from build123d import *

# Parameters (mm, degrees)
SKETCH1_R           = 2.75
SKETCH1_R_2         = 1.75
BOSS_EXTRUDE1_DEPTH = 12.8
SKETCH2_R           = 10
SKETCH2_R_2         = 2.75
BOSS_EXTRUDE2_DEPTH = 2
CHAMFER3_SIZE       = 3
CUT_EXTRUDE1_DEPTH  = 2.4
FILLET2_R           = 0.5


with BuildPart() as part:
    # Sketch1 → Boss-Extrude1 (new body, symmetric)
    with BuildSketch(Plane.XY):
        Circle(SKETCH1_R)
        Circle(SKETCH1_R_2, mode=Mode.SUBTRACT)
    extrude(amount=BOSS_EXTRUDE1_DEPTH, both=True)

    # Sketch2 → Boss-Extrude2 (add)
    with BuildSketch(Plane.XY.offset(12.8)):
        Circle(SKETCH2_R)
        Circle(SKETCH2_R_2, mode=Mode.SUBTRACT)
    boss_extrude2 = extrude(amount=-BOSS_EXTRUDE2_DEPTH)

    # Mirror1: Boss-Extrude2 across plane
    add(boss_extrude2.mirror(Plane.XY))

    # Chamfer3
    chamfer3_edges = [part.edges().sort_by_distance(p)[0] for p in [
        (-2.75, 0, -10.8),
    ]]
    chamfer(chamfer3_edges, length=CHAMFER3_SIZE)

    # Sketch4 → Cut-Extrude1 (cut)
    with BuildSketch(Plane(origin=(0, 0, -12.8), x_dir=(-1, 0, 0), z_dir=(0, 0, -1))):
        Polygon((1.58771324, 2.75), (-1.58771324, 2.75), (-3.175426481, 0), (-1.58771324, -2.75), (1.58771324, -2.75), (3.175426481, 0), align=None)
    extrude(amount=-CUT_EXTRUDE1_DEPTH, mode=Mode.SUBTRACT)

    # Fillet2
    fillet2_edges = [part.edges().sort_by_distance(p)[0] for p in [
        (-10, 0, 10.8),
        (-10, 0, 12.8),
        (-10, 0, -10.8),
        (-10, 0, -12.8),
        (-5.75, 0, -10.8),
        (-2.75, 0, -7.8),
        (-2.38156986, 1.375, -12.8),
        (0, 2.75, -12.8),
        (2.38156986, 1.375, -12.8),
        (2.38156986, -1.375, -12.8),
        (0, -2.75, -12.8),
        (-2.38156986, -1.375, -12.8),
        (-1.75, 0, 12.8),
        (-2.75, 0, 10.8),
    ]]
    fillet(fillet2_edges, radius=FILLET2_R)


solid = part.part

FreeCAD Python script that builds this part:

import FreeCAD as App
import Part
import Sketcher
from FreeCAD import Vector
Q = App.Units.Quantity


def edges_at(feature, points):
    """Names of the edges that pass closest to the given points."""
    edges = feature.Shape.Edges
    near = lambda p: min(range(len(edges)), key=lambda i: edges[i].distToShape(Part.Vertex(*p))[0])
    return sorted({f"Edge{near(p) + 1}" for p in points})


def add_polygon(sketch, points):
    """Adds a closed chain of lines whose ends are joined by coincident constraints."""
    first, n = sketch.GeometryCount, len(points)
    for a, b in zip(points, points[1:] + points[:1]):
        sketch.addGeometry(Part.LineSegment(App.Vector(*a, 0), App.Vector(*b, 0)), False)
    for i in range(n):
        sketch.addConstraint(Sketcher.Constraint("Coincident", first + i, 2, first + (i + 1) % n, 1))

doc = App.newDocument("Part")
params = doc.addObject("Spreadsheet::Sheet", "Params")
for row, (alias, value) in enumerate([
    ("sketch1_diameter", "5.5 mm"),
    ("sketch1_diameter2", "3.5 mm"),
    ("pad1_length", "25.6 mm"),
    ("sketch2_diameter", "20 mm"),
    ("sketch2_diameter2", "5.5 mm"),
    ("pad2_length", "2 mm"),
    ("chamfer_size", "3 mm"),
    ("pocket1_length", "2.4 mm"),
    ("fillet_radius", "0.5 mm"),
], start=1):
    params.set(f"A{row}", alias)
    params.set(f"B{row}", "=" + value)
    params.setAlias(f"B{row}", alias)

body = doc.addObject("PartDesign::Body", "Body")

# Sketch on XY plane
sketch1 = body.newObject("Sketcher::SketchObject", "Sketch")
sketch1.AttachmentSupport = (doc.getObject("XY_Plane"), [""])
sketch1.MapMode = "FlatFace"
sketch1.addGeometry([
    Part.Circle(Vector(0, 0, 0), Vector(0, 0, 1), 2.75),
    Part.Circle(Vector(0, 0, 0), Vector(0, 0, 1), 1.75),
], False)
sketch1.addConstraint([
    Sketcher.Constraint("Coincident", 0, 3, -1, 1),
    Sketcher.Constraint("Coincident", 1, 3, -1, 1),
    Sketcher.Constraint("Diameter", 0, 5.5),
    Sketcher.Constraint("Diameter", 1, 3.5),
])
sketch1.setExpression("Constraints[2]", "Params.sketch1_diameter")
sketch1.setExpression("Constraints[3]", "Params.sketch1_diameter2")
pad1 = body.newObject("PartDesign::Pad", "Pad")
pad1.Profile = sketch1
pad1.setExpression("Length", "Params.pad1_length")
pad1.Midplane = True

# Sketch on XY plane
sketch2 = body.newObject("Sketcher::SketchObject", "Sketch001")
sketch2.AttachmentSupport = (doc.getObject("XY_Plane"), [""])
sketch2.MapMode = "FlatFace"
sketch2.AttachmentOffset = App.Placement(Vector(0, 0, 12.8), App.Rotation())
sketch2.addGeometry([
    Part.Circle(Vector(0, 0, 0), Vector(0, 0, 1), 10),
    Part.Circle(Vector(0, 0, 0), Vector(0, 0, 1), 2.75),
], False)
sketch2.addConstraint([
    Sketcher.Constraint("Coincident", 0, 3, -1, 1),
    Sketcher.Constraint("Coincident", 1, 3, -1, 1),
    Sketcher.Constraint("Diameter", 0, 20.0),
    Sketcher.Constraint("Diameter", 1, 5.5),
])
sketch2.setExpression("Constraints[2]", "Params.sketch2_diameter")
sketch2.setExpression("Constraints[3]", "Params.sketch2_diameter2")
pad2 = body.newObject("PartDesign::Pad", "Pad001")
pad2.Profile = sketch2
pad2.setExpression("Length", "Params.pad2_length")
pad2.Reversed = True
doc.recompute()

mirrored = body.newObject("PartDesign::Mirrored", "Mirrored")
mirrored.Originals = [pad2]
mirrored.MirrorPlane = (doc.getObject("XY_Plane"), [""])
body.Tip = mirrored
doc.recompute()

chamfer = body.newObject("PartDesign::Chamfer", "Chamfer")
chamfer.Base = (mirrored, edges_at(mirrored, [(-2.75, 0, -10.8)]))
chamfer.setExpression("Size", "Params.chamfer_size")

# Sketch on XY plane
sketch3 = body.newObject("Sketcher::SketchObject", "Sketch002")
sketch3.AttachmentSupport = (doc.getObject("XY_Plane"), [""])
sketch3.MapMode = "FlatFace"
sketch3.AttachmentOffset = App.Placement(Vector(0, 0, -12.8), App.Rotation())
add_polygon(sketch3, [(-1.587713, 2.75), (1.587713, 2.75), (3.175426, 0), (1.587713, -2.75), (-1.587713, -2.75), (-3.175426, 0)])  # lines 0-5
sketch3.addConstraint([
    Sketcher.Constraint("Horizontal", 0),
    Sketcher.Constraint("Horizontal", 3),
    Sketcher.Constraint("Symmetric", 0, 2, 3, 2, -1, 1),
    Sketcher.Constraint("Symmetric", 1, 2, 4, 2, -1, 1),
    Sketcher.Constraint("PointOnObject", 1, 2, -1),
    Sketcher.Constraint("Parallel", 2, 5),
    Sketcher.Constraint("Vertical", 0, 2, 2, 2),
    Sketcher.Constraint("Angle", 1, Q("-60 deg")),
    Sketcher.Constraint("DistanceY", 2, 2, 0, 2, 5.5),
    Sketcher.Constraint("DistanceX", 0, 1, 0, 2, 3.175426),
])
pocket1 = body.newObject("PartDesign::Pocket", "Pocket")
pocket1.Profile = sketch3
pocket1.setExpression("Length", "Params.pocket1_length")
pocket1.Reversed = True
doc.recompute()

fillet = body.newObject("PartDesign::Fillet", "Fillet")
fillet.Base = (pocket1, edges_at(pocket1, [
    (-10, 0, 10.8),
    (-10, 0, 12.8),
    (-10, 0, -10.8),
    (-10, 0, -12.8),
    (-5.75, 0, -10.8),
    (-2.75, 0, -7.8),
    (-2.382, 1.375, -12.8),
    (0, 2.75, -12.8),
    (2.382, 1.375, -12.8),
    (2.382, -1.375, -12.8),
    (0, -2.75, -12.8),
    (-2.382, -1.375, -12.8),
    (-1.75, 0, 12.8),
    (-2.75, 0, 10.8),
]))
fillet.setExpression("Radius", "Params.fillet_radius")

doc.recompute()
